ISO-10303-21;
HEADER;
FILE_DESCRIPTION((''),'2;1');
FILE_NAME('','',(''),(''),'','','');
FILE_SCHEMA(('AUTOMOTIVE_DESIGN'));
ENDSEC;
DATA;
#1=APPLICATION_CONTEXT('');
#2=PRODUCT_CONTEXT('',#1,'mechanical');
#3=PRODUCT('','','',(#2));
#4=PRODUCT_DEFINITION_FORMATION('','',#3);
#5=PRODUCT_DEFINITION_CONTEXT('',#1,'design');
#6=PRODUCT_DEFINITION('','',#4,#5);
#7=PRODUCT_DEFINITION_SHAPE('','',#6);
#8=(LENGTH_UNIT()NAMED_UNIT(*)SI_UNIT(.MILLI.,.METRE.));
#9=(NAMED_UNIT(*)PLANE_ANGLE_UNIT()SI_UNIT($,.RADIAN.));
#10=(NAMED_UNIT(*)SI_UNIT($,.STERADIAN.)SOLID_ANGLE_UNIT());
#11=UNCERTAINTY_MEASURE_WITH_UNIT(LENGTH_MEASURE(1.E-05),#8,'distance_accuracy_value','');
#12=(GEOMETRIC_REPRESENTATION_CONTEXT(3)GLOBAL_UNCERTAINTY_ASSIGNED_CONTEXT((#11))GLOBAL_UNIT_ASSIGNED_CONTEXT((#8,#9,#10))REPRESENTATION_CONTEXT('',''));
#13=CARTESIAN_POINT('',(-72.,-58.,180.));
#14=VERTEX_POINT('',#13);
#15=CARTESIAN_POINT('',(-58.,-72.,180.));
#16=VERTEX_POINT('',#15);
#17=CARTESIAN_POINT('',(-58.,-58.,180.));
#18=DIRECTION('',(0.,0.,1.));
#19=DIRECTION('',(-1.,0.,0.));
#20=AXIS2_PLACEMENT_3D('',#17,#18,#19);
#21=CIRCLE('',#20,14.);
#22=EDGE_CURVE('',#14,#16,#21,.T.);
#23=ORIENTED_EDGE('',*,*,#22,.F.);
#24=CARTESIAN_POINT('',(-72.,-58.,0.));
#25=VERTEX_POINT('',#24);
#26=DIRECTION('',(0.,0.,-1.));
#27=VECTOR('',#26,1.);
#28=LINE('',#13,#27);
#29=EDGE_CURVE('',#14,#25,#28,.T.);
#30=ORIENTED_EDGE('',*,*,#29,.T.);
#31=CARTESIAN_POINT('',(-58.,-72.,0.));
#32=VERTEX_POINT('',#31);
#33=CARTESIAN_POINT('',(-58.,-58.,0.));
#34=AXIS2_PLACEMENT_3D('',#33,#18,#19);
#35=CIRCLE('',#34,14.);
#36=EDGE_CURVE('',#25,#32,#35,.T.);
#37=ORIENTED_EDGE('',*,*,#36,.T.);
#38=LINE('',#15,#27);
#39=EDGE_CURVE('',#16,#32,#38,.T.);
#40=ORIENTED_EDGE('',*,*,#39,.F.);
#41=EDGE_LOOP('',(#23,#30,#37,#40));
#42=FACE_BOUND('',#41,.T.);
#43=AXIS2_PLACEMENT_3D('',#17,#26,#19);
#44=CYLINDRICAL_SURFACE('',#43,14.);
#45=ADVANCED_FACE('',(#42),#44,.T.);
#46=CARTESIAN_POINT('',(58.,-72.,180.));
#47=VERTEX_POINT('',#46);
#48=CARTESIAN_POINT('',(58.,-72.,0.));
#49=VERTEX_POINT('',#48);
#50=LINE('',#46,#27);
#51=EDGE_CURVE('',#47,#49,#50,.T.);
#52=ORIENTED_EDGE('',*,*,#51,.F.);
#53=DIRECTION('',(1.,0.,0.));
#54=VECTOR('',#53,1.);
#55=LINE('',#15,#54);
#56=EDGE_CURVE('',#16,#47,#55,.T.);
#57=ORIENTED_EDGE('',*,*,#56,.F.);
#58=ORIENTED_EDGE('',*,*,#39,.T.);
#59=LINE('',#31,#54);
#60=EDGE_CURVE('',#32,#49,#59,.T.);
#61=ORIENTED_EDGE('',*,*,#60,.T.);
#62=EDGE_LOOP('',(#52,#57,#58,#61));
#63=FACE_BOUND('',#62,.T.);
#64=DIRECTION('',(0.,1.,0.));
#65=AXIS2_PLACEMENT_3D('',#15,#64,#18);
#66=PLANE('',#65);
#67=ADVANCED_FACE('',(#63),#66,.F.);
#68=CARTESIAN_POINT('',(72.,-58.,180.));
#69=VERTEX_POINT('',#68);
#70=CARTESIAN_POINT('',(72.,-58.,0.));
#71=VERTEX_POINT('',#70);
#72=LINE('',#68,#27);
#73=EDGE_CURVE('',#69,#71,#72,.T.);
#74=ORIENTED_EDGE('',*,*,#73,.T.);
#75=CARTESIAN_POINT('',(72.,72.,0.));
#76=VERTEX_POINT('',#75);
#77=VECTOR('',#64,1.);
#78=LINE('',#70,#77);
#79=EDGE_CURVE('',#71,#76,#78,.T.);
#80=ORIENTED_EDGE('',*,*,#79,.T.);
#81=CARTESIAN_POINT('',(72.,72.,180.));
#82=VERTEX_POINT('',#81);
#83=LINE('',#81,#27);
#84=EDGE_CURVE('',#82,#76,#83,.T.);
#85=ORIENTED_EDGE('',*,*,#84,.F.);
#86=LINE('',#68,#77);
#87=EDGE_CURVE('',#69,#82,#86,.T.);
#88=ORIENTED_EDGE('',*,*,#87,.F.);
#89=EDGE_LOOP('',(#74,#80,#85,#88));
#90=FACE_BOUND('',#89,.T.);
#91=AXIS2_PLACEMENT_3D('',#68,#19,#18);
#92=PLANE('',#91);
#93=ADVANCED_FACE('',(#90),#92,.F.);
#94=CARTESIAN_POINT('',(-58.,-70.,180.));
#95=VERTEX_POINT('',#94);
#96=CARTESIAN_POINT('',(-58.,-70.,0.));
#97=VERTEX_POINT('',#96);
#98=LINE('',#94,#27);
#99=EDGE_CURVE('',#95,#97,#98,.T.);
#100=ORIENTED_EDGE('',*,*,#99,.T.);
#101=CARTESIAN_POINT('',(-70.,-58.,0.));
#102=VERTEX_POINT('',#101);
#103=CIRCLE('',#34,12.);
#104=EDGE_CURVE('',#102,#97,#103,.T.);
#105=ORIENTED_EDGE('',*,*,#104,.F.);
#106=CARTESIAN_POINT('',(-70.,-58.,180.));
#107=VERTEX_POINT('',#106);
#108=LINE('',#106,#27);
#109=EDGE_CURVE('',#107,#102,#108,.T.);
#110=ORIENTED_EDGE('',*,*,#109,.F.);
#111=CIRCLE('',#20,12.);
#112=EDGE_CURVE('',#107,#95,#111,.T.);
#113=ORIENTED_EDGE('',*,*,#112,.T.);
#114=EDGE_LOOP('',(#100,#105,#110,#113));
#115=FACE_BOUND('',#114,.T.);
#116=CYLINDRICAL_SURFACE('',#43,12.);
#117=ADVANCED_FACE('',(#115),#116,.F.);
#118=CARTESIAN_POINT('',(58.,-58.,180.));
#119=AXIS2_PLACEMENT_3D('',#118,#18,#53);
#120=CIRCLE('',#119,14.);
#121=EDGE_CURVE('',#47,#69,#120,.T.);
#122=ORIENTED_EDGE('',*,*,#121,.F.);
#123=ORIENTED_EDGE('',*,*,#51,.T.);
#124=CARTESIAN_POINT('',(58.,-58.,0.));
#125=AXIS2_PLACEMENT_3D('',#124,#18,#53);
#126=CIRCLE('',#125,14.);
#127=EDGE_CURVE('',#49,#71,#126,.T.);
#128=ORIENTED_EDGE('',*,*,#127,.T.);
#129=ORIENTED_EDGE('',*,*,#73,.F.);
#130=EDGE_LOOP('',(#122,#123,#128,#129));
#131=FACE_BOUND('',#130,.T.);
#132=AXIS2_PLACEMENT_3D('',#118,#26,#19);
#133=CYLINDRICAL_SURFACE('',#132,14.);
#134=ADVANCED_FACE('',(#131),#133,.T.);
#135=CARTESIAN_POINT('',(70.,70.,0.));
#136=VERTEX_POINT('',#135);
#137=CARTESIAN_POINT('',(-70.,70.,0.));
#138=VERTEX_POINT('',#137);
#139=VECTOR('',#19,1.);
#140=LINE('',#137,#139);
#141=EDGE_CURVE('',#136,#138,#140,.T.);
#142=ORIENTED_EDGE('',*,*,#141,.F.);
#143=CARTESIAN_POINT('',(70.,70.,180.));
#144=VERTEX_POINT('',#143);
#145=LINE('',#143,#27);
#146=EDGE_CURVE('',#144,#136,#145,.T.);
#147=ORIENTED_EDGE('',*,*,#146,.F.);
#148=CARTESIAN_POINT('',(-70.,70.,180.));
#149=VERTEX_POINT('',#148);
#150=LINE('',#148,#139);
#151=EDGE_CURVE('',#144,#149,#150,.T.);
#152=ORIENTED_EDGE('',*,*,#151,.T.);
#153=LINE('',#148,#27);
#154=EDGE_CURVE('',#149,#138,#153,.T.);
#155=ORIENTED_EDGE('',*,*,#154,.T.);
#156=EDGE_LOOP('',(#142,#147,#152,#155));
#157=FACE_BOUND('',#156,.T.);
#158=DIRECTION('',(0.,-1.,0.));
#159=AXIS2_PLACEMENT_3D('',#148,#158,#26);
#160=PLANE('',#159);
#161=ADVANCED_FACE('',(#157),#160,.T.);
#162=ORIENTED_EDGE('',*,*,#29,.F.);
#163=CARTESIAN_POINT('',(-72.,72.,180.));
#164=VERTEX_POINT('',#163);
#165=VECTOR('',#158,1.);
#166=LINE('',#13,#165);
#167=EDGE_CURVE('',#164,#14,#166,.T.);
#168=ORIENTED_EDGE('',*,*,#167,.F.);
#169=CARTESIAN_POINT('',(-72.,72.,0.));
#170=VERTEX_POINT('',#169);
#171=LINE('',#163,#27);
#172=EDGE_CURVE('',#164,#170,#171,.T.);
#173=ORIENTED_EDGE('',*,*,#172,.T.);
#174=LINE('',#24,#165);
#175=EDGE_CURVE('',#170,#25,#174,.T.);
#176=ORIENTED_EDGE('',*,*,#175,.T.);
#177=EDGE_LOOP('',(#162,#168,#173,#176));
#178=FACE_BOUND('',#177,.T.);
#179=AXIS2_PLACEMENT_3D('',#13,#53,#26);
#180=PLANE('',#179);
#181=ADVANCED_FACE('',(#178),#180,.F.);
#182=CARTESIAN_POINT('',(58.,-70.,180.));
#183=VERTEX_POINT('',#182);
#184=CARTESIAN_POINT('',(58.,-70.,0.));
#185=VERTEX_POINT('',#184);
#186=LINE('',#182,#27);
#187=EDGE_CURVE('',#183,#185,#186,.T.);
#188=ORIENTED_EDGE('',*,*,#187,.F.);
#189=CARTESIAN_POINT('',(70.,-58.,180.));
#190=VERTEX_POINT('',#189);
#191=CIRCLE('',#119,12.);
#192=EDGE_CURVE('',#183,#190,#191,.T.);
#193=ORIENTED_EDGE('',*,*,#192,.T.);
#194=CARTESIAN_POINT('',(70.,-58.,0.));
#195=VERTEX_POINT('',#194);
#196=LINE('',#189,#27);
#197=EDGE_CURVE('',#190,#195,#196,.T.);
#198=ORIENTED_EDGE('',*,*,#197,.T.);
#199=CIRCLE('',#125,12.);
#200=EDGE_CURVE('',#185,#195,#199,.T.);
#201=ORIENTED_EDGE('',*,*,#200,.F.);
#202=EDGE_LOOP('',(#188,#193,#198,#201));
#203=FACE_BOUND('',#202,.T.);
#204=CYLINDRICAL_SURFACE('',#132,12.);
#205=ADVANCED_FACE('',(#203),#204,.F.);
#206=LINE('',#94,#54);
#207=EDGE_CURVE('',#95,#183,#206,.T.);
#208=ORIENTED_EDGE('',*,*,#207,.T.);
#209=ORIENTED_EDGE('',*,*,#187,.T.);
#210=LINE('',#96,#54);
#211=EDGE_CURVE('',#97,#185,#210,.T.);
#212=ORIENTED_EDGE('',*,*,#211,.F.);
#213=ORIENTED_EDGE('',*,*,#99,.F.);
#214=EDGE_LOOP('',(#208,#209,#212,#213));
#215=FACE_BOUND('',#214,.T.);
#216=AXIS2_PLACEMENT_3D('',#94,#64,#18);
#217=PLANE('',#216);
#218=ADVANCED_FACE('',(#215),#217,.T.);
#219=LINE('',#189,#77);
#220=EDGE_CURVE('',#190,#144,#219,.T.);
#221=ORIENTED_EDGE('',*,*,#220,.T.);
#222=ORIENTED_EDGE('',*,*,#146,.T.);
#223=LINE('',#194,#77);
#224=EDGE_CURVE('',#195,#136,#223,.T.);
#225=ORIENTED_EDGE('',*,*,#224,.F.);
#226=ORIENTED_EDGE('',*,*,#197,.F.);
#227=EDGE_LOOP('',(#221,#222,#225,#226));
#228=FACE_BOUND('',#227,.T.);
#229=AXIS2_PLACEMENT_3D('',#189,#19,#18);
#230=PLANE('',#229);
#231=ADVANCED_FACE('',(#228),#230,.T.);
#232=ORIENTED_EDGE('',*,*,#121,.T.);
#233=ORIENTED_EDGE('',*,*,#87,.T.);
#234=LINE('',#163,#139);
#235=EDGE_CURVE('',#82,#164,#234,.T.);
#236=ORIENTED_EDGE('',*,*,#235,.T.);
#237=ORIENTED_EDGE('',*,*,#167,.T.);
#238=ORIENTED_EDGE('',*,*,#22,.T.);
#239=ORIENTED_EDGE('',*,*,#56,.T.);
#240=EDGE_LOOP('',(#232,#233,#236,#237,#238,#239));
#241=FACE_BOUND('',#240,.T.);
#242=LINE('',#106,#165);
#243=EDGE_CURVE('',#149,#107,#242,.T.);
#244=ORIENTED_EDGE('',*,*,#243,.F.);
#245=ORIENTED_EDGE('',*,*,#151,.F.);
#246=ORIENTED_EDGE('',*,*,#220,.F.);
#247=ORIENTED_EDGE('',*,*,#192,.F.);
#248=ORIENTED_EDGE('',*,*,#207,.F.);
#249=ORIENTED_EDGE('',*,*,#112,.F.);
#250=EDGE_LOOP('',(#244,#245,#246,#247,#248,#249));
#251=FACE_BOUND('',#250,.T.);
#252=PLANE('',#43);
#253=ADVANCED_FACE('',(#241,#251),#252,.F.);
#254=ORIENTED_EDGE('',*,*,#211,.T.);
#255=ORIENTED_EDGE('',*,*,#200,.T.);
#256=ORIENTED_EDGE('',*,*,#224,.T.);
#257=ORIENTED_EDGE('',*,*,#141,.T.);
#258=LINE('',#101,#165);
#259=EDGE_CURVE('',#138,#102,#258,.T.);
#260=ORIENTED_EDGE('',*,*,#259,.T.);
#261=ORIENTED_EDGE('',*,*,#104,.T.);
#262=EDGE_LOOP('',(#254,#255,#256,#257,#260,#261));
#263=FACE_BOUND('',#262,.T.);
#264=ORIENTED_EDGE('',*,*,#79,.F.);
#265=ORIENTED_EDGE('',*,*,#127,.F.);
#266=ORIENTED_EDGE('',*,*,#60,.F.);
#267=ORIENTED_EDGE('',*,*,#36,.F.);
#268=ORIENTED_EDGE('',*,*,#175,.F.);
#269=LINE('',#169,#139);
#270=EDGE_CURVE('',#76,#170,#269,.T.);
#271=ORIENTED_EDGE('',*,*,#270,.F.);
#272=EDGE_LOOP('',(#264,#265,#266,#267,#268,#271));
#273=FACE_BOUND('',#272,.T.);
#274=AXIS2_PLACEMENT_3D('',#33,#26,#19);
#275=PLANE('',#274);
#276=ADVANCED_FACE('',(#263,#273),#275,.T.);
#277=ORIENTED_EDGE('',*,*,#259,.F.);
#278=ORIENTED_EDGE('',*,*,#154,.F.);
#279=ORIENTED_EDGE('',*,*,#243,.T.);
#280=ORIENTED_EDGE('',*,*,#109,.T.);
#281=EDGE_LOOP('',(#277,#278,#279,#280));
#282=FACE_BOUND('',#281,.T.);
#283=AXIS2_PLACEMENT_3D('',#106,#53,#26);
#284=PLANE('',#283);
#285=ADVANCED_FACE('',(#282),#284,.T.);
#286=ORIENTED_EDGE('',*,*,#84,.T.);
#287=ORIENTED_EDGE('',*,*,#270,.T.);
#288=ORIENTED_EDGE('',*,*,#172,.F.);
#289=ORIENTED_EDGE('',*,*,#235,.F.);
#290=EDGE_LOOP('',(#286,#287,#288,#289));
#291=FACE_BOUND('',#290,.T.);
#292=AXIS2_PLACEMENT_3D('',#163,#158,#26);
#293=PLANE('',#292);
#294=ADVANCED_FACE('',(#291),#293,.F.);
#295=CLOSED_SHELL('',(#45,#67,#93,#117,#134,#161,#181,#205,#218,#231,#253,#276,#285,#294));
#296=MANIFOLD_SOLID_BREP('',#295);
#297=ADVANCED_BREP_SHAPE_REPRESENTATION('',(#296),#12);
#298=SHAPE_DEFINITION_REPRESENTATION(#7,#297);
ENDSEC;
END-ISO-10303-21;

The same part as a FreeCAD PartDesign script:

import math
import FreeCAD as App
import Part
import Sketcher
Q = App.Units.Quantity

doc = App.newDocument("Part")
body = doc.addObject("PartDesign::Body", "Body")

sketch1 = doc.addObject("Sketcher::SketchObject", "Sketch")
body.addObject(sketch1)
sketch1.AttachmentSupport = (doc.XY_Plane, [""])
sketch1.MapMode = "FlatFace"
sketch1.addGeometry([
    Part.LineSegment(App.Vector(-58, -72, 0), App.Vector(58, -72, 0)),
    Part.ArcOfCircle(Part.Circle(App.Vector(58, -58, 0), App.Vector(0, 0, 1), 14), math.radians(-90), math.radians(0)),
    Part.LineSegment(App.Vector(72, -58, 0), App.Vector(72, 72, 0)),
    Part.LineSegment(App.Vector(72, 72, 0), App.Vector(-72, 72, 0)),
    Part.LineSegment(App.Vector(-72, 72, 0), App.Vector(-72, -58, 0)),
    Part.ArcOfCircle(Part.Circle(App.Vector(-58, -58, 0), App.Vector(0, 0, 1), 14), math.radians(180), math.radians(270)),
    Part.ArcOfCircle(Part.Circle(App.Vector(-58, -58, 0), App.Vector(0, 0, 1), 12), math.radians(-180), math.radians(-90)),
    Part.LineSegment(App.Vector(-70, -58, 0), App.Vector(-70, 70, 0)),
    Part.LineSegment(App.Vector(-70, 70, 0), App.Vector(70, 70, 0)),
    Part.LineSegment(App.Vector(70, 70, 0), App.Vector(70, -58, 0)),
    Part.ArcOfCircle(Part.Circle(App.Vector(58, -58, 0), App.Vector(0, 0, 1), 12), math.radians(-90), math.radians(0)),
    Part.LineSegment(App.Vector(58, -70, 0), App.Vector(-58, -70, 0)),
], False)
sketch1.addConstraint([
    Sketcher.Constraint("Tangent", 0, 2, 1, 1),
    Sketcher.Constraint("Tangent", 1, 2, 2, 1),
    Sketcher.Constraint("Coincident", 2, 2, 3, 1),
    Sketcher.Constraint("Coincident", 3, 2, 4, 1),
    Sketcher.Constraint("Tangent", 4, 2, 5, 1),
    Sketcher.Constraint("Tangent", 5, 2, 0, 1),
    Sketcher.Constraint("Tangent", 6, 1, 7, 1),
    Sketcher.Constraint("Coincident", 7, 2, 8, 1),
    Sketcher.Constraint("Coincident", 8, 2, 9, 1),
    Sketcher.Constraint("Tangent", 9, 2, 10, 2),
    Sketcher.Constraint("Tangent", 10, 1, 11, 1),
    Sketcher.Constraint("Tangent", 11, 2, 6, 2),
    Sketcher.Constraint("Horizontal", 0),
    Sketcher.Constraint("Vertical", 2),
    Sketcher.Constraint("Horizontal", 3),
    Sketcher.Constraint("Vertical", 4),
    Sketcher.Constraint("Vertical", 7),
    Sketcher.Constraint("Horizontal", 8),
    Sketcher.Constraint("Vertical", 9),
    Sketcher.Constraint("Horizontal", 11),
    Sketcher.Constraint("Coincident", 6, 3, 5, 3),
    Sketcher.Constraint("Coincident", 10, 3, 1, 3),
    Sketcher.Constraint("Equal", 1, 5),
    Sketcher.Constraint("Radius", 1, Q("14 mm")),
    Sketcher.Constraint("Radius", 6, Q("12 mm")),
    Sketcher.Constraint("DistanceX", 0, 1, 0, 2, Q("116 mm")),
    Sketcher.Constraint("DistanceY", 2, 1, 2, 2, Q("130 mm")),
    Sketcher.Constraint("DistanceY", 7, 1, 7, 2, Q("128 mm")),
    Sketcher.Constraint("DistanceX", -1, 1, 1, 3, Q("58 mm")),
    Sketcher.Constraint("DistanceY", 1, 3, -1, 1, Q("58 mm")),
])
pad1 = doc.addObject("PartDesign::Pad", "Pad")
body.addObject(pad1)
pad1.Profile = sketch1
pad1.Length = 180

doc.recompute()
